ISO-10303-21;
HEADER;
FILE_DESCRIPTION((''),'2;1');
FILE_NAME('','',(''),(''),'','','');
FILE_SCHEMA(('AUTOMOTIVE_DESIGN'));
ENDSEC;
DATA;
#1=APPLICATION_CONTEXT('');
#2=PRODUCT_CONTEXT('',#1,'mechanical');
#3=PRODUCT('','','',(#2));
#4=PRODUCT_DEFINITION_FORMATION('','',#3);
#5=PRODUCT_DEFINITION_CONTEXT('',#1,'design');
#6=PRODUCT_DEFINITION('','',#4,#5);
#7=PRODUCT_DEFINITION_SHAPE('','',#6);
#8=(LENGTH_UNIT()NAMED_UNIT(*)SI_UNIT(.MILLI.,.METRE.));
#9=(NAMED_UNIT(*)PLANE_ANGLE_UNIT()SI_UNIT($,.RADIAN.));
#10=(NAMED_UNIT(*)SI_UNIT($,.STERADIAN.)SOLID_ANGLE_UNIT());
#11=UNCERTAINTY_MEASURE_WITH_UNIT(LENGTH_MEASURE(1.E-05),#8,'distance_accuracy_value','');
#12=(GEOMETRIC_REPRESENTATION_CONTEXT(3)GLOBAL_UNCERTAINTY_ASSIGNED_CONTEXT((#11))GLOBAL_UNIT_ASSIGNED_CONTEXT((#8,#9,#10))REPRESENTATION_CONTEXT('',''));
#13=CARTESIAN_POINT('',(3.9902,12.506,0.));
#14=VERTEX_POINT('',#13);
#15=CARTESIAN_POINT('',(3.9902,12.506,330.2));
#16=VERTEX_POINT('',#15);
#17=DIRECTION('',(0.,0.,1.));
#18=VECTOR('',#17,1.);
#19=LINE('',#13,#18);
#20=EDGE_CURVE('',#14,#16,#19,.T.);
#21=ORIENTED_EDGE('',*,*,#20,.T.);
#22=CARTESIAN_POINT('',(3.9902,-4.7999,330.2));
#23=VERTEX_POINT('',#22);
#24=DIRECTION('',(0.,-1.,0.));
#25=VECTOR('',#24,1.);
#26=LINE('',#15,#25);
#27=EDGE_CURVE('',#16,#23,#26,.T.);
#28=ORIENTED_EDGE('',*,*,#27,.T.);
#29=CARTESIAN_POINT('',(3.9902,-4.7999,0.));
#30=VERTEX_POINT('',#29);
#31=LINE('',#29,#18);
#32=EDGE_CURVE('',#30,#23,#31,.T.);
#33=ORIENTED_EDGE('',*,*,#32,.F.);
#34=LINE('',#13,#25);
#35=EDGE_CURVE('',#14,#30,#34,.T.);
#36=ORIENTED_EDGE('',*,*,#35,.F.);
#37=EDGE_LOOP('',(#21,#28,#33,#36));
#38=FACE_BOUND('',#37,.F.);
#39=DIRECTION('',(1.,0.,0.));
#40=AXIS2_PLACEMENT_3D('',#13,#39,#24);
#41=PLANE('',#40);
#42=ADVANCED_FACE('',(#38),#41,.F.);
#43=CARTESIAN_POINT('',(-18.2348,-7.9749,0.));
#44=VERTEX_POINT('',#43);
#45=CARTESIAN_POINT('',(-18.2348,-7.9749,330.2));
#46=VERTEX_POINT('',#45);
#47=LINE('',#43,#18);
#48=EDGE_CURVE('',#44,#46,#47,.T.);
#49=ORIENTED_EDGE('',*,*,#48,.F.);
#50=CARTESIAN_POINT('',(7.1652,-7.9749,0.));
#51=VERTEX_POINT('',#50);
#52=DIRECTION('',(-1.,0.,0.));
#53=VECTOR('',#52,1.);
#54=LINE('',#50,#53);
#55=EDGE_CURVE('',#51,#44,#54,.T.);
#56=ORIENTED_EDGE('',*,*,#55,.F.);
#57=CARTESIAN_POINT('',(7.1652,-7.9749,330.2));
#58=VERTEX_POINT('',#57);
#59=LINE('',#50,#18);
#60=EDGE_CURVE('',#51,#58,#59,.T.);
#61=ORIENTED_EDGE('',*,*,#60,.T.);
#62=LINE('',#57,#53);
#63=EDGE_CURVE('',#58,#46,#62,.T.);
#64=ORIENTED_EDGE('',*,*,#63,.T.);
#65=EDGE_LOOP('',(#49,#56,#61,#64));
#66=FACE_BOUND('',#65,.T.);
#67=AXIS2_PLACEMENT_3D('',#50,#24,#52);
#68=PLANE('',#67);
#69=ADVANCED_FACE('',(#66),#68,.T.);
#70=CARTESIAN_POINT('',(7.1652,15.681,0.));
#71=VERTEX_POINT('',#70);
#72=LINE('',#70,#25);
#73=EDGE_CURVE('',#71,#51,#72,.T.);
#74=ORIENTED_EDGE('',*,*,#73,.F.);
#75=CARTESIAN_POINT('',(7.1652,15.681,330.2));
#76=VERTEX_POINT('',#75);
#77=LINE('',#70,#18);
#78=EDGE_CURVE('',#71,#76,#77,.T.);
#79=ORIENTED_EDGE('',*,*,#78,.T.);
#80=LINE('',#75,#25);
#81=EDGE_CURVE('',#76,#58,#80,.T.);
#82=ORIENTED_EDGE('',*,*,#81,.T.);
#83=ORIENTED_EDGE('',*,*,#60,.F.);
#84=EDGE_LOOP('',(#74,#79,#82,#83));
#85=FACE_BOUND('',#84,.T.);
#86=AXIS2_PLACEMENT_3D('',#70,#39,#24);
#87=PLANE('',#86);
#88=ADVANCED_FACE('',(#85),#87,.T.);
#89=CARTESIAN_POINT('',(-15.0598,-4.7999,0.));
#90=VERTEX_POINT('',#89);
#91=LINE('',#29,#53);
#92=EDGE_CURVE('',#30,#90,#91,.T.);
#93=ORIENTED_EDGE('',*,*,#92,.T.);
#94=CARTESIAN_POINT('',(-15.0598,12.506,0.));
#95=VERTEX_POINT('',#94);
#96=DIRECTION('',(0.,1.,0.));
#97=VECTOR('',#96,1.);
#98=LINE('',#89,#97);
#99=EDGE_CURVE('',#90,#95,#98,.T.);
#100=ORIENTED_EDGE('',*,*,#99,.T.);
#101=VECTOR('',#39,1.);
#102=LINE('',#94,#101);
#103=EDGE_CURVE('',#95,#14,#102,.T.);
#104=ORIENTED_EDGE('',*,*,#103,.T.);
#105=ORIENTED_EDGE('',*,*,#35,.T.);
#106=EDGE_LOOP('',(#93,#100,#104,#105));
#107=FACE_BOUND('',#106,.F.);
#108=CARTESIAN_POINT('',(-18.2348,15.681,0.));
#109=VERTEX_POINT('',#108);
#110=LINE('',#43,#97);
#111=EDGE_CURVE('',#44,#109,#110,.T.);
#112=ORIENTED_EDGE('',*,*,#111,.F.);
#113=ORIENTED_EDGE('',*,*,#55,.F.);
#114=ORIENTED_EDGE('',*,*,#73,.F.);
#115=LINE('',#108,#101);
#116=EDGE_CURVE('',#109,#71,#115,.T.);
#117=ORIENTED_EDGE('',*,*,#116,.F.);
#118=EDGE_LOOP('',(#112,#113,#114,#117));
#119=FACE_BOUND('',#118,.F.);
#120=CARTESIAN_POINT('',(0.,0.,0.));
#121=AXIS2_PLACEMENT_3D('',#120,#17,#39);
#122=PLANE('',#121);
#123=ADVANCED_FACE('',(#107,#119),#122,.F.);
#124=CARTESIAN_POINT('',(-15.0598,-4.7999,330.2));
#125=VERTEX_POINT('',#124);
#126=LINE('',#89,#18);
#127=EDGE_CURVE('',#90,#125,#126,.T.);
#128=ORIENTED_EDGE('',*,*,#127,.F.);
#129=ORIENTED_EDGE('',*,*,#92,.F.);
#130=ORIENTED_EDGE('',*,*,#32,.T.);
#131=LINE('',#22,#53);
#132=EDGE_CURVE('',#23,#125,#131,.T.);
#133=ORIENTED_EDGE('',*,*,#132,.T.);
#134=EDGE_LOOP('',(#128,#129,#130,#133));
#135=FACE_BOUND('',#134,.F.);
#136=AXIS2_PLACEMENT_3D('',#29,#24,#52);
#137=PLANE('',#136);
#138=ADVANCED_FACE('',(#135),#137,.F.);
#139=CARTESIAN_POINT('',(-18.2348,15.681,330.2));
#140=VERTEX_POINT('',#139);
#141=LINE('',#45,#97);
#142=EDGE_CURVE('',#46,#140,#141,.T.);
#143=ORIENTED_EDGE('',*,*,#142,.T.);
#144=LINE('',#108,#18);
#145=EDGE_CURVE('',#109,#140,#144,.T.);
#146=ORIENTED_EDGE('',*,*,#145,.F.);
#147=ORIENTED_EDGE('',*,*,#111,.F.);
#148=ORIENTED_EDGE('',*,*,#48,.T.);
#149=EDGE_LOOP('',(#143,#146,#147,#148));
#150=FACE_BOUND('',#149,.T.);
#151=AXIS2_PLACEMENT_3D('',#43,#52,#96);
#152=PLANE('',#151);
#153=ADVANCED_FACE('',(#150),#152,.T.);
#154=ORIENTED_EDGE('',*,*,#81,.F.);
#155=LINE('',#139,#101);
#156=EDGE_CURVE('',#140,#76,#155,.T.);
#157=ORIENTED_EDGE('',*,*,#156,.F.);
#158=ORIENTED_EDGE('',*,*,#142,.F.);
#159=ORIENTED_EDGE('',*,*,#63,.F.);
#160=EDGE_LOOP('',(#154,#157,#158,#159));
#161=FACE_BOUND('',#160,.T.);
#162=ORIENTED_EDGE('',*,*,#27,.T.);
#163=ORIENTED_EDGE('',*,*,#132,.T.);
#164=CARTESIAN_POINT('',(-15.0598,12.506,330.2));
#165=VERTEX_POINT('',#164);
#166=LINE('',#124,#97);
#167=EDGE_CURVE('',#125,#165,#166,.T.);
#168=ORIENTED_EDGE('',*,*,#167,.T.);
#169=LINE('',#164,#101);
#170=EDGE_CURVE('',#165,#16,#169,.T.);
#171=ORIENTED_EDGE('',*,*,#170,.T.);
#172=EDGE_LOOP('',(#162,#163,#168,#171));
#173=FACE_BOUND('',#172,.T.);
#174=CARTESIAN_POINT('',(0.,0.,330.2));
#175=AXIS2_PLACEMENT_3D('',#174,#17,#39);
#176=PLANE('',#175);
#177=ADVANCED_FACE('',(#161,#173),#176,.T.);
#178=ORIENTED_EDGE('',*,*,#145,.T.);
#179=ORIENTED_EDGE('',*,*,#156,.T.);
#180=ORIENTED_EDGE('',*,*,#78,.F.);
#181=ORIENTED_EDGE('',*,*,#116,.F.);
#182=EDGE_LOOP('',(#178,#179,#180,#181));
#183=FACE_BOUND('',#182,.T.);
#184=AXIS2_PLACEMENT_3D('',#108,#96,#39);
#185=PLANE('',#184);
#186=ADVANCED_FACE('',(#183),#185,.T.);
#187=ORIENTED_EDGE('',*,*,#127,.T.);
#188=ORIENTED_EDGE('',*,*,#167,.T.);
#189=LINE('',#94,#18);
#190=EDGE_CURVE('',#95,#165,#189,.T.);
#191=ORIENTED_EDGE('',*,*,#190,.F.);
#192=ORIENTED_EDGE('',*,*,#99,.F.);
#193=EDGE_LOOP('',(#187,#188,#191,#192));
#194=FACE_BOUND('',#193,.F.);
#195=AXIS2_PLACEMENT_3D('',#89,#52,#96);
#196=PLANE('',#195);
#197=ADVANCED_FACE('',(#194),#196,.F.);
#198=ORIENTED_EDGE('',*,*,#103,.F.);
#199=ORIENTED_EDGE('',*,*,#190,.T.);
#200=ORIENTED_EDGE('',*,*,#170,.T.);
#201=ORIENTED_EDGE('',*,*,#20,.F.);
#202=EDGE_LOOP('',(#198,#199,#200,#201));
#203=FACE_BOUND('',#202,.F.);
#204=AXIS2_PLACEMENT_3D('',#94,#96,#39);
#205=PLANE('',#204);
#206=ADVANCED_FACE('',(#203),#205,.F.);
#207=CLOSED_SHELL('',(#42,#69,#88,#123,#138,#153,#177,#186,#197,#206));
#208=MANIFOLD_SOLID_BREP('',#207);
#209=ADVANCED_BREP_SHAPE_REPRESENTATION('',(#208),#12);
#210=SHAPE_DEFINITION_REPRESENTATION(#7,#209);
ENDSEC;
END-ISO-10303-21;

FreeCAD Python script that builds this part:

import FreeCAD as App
import Part
import Sketcher
Q = App.Units.Quantity

doc = App.newDocument("Part")
params = doc.addObject("Spreadsheet::Sheet", "Params")
for row, (alias, value) in enumerate([
    ("sketch1_width", "1 in"),
    ("pad1_length", "13 in"),
], start=1):
    params.set(f"A{row}", alias)
    params.set(f"B{row}", "=" + value)
    params.setAlias(f"B{row}", alias)

body = doc.addObject("PartDesign::Body", "Body")

# Sketch on XY plane
sketch1 = body.newObject("Sketcher::SketchObject", "Sketch")
sketch1.AttachmentSupport = (doc.getObject("XY_Plane"), [""])
sketch1.MapMode = "FlatFace"
sketch1.addGeometry([
    Part.LineSegment(App.Vector(7.1652, 15.681, 0), App.Vector(-18.2348, 15.681, 0)),  # 0
    Part.LineSegment(App.Vector(-18.2348, 15.681, 0), App.Vector(-18.2348, -7.9749, 0)),  # 1
    Part.LineSegment(App.Vector(-18.2348, -7.9749, 0), App.Vector(7.1652, -7.9749, 0)),  # 2
    Part.LineSegment(App.Vector(7.1652, -7.9749, 0), App.Vector(7.1652, 15.681, 0)),  # 3
    Part.LineSegment(App.Vector(3.9902, 12.506, 0), App.Vector(3.9902, -4.7999, 0)),  # 4
    Part.LineSegment(App.Vector(3.9902, -4.7999, 0), App.Vector(-15.0598, -4.7999, 0)),  # 5
    Part.LineSegment(App.Vector(-15.0598, -4.7999, 0), App.Vector(-15.0598, 12.506, 0)),  # 6
    Part.LineSegment(App.Vector(-15.0598, 12.506, 0), App.Vector(3.9902, 12.506, 0)),  # 7
], False)
sketch1.addConstraint([
    Sketcher.Constraint("Coincident", 0, 2, 1, 1),
    Sketcher.Constraint("Coincident", 1, 2, 2, 1),
    Sketcher.Constraint("Coincident", 2, 2, 3, 1),
    Sketcher.Constraint("Coincident", 3, 2, 0, 1),
    Sketcher.Constraint("Coincident", 4, 2, 5, 1),
    Sketcher.Constraint("Coincident", 5, 2, 6, 1),
    Sketcher.Constraint("Coincident", 6, 2, 7, 1),
    Sketcher.Constraint("Coincident", 7, 2, 4, 1),
    Sketcher.Constraint("Horizontal", 0),
    Sketcher.Constraint("Vertical", 1),
    Sketcher.Constraint("Horizontal", 2),
    Sketcher.Constraint("Vertical", 3),
    Sketcher.Constraint("Vertical", 4),
    Sketcher.Constraint("Horizontal", 5),
    Sketcher.Constraint("Vertical", 6),
    Sketcher.Constraint("Horizontal", 7),
    Sketcher.Constraint("DistanceX", 0, 2, 0, 1, Q("1 in")),
    Sketcher.Constraint("DistanceX", 4, 2, 2, 2, Q("0.125 in")),
    Sketcher.Constraint("DistanceY", 2, 2, 4, 2, Q("0.125 in")),
    Sketcher.Constraint("DistanceX", 1, 2, 5, 2, Q("0.125 in")),
    Sketcher.Constraint("DistanceY", 6, 2, 0, 2, Q("0.125 in")),
    Sketcher.Constraint("DistanceY", 1, 2, 1, 1, Q("23.656 mm")),
    Sketcher.Constraint("DistanceX", 0, 2, -1, 1, Q("0.7179 in")),
    Sketcher.Constraint("DistanceY", -1, 1, 0, 2, Q("15.681 mm")),
])
sketch1.setExpression("Constraints[16]", "Params.sketch1_width")
pad1 = body.newObject("PartDesign::Pad", "Pad")
pad1.Profile = sketch1
pad1.setExpression("Length", "Params.pad1_length")

doc.recompute()
